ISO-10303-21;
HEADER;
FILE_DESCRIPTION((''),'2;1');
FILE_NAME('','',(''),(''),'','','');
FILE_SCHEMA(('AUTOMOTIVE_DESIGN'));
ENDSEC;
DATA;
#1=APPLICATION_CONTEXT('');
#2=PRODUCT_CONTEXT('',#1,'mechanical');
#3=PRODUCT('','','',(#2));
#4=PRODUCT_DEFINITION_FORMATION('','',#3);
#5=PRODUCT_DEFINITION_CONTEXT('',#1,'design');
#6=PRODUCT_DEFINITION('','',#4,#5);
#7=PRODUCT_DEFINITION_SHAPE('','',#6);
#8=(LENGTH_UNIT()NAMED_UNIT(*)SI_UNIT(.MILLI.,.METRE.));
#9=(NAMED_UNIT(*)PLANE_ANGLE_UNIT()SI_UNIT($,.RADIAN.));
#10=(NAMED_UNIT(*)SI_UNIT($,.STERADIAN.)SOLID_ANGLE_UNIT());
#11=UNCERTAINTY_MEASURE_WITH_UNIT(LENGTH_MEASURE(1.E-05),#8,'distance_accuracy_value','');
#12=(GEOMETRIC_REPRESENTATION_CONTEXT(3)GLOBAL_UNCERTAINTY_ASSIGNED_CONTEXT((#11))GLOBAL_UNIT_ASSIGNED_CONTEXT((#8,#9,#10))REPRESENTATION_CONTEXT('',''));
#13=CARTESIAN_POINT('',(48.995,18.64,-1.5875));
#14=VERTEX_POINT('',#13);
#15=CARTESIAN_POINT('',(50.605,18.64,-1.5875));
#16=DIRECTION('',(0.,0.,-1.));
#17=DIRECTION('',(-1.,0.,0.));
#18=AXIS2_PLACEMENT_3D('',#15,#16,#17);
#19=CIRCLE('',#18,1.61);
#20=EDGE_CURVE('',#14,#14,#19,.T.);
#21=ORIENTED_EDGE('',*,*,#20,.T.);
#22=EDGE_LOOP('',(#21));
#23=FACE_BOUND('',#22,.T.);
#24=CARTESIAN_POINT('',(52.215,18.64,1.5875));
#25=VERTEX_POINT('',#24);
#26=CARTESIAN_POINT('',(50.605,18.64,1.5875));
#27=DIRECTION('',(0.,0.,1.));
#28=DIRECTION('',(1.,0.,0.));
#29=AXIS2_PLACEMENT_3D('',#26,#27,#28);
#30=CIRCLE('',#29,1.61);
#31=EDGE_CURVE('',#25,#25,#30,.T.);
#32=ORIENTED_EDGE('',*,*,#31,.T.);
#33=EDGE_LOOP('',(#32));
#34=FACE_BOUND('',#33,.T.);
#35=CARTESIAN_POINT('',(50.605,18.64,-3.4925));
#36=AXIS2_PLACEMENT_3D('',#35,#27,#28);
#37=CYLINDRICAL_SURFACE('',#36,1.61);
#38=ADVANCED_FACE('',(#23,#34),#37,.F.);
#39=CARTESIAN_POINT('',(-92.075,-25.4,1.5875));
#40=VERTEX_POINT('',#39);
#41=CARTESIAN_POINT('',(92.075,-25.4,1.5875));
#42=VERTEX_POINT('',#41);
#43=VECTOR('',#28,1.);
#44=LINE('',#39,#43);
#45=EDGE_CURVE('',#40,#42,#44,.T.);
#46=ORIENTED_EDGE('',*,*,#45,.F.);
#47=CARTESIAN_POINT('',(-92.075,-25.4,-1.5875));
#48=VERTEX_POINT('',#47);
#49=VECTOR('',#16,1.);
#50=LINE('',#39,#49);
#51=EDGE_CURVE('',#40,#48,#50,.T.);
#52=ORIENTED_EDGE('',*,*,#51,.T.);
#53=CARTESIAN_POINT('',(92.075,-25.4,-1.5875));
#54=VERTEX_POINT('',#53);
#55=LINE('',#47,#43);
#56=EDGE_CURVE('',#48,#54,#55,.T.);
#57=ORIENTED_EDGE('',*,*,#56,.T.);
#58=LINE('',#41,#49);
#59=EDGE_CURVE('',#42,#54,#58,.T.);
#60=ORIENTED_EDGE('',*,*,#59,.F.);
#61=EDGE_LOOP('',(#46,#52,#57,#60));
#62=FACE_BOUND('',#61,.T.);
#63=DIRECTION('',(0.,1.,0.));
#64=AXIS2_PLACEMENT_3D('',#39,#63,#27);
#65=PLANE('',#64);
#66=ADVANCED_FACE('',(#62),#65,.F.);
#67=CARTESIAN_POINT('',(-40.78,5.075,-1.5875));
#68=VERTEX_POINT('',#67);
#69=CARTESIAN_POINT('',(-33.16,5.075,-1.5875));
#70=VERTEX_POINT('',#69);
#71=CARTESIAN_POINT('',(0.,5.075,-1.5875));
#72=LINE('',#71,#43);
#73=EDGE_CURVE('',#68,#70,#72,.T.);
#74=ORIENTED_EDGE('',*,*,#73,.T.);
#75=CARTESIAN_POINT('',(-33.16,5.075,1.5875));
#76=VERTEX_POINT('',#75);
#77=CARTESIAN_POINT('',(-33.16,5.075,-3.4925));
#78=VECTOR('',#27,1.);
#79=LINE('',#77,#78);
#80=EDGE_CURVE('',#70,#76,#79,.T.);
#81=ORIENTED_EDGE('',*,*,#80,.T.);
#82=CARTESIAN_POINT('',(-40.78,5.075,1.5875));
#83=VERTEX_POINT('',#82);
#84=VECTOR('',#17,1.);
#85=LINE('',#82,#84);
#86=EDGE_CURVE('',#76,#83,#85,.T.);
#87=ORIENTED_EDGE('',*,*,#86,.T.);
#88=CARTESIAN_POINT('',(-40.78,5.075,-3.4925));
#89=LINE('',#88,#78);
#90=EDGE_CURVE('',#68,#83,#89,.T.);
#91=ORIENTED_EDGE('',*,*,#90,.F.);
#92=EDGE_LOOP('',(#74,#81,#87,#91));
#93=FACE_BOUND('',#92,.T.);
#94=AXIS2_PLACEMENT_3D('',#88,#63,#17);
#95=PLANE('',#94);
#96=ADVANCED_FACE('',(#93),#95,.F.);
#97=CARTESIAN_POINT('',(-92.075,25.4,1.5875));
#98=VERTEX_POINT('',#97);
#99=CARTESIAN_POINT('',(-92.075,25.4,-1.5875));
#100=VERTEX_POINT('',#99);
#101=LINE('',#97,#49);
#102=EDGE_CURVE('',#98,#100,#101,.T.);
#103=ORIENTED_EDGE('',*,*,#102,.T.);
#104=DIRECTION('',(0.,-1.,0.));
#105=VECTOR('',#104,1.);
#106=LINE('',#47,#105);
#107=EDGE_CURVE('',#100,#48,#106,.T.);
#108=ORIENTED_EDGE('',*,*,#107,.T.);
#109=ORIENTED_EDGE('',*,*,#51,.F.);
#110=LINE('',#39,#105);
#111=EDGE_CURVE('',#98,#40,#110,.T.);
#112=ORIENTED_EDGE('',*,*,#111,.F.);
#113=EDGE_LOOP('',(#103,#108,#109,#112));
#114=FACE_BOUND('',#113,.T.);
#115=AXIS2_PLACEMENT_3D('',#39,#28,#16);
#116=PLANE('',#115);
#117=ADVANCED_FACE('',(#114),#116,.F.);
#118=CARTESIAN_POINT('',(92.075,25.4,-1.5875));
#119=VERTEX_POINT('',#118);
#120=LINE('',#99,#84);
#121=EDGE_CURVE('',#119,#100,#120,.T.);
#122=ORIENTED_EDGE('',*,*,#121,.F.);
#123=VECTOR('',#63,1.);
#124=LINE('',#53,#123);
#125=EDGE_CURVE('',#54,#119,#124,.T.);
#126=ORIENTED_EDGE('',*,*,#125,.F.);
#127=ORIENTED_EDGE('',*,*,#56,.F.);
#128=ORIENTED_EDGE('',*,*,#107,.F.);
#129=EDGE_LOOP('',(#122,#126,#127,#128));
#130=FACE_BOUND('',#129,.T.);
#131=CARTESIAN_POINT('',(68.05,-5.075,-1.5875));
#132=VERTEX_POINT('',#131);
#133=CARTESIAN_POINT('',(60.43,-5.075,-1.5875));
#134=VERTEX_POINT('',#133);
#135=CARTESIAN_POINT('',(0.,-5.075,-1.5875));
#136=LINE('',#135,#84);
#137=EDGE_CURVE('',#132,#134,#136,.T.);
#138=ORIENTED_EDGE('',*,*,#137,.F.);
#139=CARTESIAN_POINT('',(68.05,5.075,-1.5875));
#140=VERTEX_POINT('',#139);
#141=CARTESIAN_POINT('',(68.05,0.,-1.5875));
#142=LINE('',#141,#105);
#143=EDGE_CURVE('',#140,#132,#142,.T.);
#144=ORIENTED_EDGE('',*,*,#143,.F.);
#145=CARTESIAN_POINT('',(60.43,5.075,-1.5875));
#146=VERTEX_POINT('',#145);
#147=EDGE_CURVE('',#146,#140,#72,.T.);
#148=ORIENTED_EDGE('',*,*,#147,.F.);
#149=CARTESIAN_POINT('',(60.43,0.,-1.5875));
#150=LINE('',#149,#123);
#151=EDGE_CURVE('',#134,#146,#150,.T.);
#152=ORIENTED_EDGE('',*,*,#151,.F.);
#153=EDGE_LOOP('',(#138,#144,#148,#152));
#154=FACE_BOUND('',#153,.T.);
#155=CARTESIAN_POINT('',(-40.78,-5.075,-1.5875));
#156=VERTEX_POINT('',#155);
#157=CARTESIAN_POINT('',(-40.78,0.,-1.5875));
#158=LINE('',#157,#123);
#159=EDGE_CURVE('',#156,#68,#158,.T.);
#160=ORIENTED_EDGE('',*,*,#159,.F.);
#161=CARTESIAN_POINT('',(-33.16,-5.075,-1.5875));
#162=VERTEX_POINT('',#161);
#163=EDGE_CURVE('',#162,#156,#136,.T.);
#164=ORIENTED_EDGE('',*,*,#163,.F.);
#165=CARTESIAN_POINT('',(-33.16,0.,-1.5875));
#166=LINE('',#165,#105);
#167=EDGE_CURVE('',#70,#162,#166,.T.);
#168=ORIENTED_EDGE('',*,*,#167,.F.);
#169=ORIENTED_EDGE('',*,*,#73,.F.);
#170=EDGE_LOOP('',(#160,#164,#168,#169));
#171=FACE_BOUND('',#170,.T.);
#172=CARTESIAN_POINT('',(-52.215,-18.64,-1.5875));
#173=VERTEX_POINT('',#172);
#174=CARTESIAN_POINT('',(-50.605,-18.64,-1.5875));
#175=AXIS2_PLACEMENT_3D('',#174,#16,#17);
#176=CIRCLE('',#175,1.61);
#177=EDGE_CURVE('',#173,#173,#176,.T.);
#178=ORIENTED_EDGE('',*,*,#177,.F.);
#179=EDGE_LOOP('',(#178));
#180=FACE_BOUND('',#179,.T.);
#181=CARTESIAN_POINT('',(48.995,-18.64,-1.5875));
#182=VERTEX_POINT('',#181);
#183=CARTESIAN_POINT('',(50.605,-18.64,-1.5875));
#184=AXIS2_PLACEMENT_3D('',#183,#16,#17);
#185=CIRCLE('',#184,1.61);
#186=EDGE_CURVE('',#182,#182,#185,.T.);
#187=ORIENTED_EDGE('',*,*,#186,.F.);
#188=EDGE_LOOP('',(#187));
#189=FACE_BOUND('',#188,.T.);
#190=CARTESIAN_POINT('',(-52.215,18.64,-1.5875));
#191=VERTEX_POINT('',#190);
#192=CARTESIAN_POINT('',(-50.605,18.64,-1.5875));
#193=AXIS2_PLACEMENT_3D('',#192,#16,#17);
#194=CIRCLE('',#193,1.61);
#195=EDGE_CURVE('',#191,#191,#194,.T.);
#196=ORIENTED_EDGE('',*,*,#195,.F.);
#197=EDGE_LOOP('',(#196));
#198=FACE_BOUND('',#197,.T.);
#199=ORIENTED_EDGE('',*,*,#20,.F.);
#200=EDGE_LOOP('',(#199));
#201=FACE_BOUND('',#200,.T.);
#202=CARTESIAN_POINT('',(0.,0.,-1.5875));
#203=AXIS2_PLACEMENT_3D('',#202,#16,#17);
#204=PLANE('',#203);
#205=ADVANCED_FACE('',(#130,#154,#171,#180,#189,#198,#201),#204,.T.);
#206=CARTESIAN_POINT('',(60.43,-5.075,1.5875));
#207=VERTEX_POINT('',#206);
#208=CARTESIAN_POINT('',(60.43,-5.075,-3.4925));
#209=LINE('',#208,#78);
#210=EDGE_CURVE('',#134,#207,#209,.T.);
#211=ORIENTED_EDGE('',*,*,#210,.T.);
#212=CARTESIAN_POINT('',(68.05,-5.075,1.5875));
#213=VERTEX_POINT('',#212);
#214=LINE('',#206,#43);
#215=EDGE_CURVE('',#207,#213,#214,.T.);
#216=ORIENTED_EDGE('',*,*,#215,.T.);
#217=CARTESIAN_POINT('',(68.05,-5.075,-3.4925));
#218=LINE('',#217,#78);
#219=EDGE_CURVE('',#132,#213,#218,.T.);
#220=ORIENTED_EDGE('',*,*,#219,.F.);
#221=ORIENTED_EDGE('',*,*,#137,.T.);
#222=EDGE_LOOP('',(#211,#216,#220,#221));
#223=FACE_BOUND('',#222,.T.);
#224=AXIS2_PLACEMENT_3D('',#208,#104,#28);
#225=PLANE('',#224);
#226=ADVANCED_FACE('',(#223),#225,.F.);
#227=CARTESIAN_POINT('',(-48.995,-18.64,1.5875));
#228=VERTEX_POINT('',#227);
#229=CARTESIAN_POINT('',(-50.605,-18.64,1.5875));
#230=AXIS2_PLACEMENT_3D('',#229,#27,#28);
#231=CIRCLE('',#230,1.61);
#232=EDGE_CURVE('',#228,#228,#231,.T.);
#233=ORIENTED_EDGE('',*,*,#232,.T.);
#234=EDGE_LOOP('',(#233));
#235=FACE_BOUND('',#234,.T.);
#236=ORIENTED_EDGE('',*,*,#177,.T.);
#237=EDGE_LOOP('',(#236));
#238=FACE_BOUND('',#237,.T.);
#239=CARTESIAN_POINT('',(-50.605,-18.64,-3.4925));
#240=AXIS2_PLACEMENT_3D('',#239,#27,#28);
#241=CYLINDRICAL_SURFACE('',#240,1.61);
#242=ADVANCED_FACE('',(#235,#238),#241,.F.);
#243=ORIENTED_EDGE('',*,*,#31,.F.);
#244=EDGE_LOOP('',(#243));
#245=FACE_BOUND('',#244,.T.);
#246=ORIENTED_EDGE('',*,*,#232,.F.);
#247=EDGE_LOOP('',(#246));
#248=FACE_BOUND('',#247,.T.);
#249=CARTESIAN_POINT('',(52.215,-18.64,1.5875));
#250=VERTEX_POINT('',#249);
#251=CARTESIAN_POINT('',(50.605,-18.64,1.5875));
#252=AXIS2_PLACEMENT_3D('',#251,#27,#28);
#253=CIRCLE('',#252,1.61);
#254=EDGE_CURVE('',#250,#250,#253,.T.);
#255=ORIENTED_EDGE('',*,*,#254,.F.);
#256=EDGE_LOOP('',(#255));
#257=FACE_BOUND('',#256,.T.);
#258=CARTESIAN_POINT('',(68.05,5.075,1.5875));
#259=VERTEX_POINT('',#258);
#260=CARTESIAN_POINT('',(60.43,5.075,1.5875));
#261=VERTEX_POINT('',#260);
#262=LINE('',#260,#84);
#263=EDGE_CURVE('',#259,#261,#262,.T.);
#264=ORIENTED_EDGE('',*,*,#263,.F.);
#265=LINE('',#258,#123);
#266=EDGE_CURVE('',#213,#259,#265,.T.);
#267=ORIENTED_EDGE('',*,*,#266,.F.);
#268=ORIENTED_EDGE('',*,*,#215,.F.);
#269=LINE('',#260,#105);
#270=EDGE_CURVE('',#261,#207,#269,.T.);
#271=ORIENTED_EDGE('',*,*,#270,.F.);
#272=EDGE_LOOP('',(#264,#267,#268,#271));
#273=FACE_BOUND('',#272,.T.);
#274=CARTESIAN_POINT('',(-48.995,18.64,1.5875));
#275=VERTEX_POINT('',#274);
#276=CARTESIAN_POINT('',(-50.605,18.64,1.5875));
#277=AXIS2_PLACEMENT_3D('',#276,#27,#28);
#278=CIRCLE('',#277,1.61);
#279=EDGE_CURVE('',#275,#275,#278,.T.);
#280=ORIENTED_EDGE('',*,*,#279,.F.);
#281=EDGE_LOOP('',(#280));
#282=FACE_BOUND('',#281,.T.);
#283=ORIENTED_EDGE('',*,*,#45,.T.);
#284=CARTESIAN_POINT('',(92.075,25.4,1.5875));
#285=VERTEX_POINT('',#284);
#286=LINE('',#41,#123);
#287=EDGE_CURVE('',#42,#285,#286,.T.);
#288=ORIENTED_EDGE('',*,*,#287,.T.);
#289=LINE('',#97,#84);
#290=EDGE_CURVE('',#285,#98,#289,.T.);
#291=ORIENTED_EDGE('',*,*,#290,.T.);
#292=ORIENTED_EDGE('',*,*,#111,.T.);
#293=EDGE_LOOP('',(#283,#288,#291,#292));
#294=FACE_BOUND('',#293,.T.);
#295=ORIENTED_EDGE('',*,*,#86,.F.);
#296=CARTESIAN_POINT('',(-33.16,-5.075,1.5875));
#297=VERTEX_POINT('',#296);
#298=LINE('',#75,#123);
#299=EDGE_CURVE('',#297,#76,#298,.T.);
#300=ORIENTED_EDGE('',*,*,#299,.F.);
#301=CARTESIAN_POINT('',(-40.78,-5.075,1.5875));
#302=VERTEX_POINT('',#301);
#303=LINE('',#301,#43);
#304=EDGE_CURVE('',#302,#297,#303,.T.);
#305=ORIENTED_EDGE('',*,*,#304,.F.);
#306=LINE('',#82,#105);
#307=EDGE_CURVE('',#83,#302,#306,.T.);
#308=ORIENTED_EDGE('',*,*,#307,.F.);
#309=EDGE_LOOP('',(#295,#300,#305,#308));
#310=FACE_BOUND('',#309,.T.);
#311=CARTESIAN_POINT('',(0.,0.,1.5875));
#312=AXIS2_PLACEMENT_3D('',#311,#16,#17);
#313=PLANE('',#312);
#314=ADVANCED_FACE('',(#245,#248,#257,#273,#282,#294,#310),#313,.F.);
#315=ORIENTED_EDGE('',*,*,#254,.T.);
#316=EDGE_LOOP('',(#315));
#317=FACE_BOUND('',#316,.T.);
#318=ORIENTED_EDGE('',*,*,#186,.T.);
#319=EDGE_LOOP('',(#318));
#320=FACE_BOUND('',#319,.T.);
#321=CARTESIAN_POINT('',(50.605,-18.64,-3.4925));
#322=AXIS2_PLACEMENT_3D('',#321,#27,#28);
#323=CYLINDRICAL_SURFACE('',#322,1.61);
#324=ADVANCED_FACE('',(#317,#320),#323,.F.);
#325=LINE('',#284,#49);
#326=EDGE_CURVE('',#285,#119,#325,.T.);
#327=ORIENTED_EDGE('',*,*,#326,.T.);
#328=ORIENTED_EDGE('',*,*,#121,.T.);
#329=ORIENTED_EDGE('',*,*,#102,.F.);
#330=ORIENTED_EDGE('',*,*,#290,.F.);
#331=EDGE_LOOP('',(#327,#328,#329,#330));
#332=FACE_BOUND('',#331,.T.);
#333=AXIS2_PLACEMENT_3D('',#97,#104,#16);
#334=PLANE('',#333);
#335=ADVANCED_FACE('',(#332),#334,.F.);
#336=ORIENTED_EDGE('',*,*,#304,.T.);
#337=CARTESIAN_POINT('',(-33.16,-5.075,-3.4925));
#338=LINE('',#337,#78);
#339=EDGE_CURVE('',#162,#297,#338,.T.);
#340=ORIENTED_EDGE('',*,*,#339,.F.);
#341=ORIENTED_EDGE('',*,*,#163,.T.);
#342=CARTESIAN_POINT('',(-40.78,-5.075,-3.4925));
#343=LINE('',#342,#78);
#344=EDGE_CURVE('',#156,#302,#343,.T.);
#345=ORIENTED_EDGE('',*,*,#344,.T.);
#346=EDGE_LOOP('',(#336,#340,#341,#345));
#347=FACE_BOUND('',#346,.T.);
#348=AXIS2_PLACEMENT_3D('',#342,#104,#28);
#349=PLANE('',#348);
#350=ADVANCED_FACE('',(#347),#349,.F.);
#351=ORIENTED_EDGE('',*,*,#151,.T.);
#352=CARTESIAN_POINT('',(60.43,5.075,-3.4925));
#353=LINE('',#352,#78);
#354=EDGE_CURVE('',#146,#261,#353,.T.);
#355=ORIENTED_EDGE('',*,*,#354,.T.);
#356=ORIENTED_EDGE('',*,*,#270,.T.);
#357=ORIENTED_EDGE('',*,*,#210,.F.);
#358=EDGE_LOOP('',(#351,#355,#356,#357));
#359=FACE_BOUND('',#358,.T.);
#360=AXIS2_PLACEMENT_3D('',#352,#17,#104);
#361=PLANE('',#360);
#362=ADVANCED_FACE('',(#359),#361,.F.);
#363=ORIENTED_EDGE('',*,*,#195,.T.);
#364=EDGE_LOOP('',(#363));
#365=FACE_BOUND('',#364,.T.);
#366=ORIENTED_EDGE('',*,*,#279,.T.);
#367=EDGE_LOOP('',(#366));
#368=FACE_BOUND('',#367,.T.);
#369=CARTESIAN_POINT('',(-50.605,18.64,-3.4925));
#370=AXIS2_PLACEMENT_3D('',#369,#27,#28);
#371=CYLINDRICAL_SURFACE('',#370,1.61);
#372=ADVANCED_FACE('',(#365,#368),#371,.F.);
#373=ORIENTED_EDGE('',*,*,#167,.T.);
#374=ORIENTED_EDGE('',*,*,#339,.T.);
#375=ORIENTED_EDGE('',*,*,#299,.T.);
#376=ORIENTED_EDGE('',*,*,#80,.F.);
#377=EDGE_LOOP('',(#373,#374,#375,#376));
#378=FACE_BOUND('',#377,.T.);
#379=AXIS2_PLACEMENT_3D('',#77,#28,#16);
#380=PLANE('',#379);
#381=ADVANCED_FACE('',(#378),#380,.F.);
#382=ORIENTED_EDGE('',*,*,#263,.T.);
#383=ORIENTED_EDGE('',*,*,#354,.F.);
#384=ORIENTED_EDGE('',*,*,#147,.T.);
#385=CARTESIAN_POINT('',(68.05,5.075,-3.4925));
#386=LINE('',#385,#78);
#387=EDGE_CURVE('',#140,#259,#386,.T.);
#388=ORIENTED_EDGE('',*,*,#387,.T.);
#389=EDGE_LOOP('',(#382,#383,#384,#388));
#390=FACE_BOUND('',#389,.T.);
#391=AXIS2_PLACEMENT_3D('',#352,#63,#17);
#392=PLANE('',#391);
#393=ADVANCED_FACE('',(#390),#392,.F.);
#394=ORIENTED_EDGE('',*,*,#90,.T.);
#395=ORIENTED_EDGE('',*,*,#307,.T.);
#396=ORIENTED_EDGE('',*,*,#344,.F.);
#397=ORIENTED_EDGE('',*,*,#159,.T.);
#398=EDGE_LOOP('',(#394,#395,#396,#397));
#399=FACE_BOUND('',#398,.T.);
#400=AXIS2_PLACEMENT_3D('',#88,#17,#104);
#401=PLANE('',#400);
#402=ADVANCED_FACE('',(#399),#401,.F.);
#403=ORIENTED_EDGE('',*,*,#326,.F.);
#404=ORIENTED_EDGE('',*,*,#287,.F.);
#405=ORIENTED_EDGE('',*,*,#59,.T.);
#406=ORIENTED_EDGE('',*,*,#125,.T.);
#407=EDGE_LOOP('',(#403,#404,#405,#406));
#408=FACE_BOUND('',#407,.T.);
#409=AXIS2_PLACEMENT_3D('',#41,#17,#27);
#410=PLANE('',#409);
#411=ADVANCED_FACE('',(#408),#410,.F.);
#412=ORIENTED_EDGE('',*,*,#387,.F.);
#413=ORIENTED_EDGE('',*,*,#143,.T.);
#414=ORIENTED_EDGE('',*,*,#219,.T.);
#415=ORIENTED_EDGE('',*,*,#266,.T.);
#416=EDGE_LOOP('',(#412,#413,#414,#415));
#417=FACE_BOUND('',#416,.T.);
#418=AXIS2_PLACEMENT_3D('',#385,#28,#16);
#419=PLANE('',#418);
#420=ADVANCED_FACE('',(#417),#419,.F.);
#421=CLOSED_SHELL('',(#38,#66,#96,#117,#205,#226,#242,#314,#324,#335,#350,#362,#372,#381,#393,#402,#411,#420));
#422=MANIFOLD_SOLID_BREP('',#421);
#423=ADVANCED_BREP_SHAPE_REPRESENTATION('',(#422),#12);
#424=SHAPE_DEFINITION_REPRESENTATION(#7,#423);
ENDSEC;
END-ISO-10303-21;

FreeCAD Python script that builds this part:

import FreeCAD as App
import Part
import Sketcher
Q = App.Units.Quantity


def add_polygon(sketch, points):
    """Adds a closed chain of lines whose ends are joined by coincident constraints."""
    first, n = sketch.GeometryCount, len(points)
    for a, b in zip(points, points[1:] + points[:1]):
        sketch.addGeometry(Part.LineSegment(App.Vector(*a, 0), App.Vector(*b, 0)), False)
    for i in range(n):
        sketch.addConstraint(Sketcher.Constraint("Coincident", first + i, 2, first + (i + 1) % n, 1))

doc = App.newDocument("Part")
body = doc.addObject("PartDesign::Body", "Body")

sketch1 = body.newObject("Sketcher::SketchObject", "Sketch")
sketch1.AttachmentSupport = (doc.getObject("XY_Plane"), [""])
sketch1.MapMode = "FlatFace"
add_polygon(sketch1, [(-92.075, 25.4), (-92.075, -25.4), (92.075, -25.4), (92.075, 25.4)])
sketch1.addConstraint(Sketcher.Constraint("Vertical", 0))
sketch1.addConstraint(Sketcher.Constraint("Horizontal", 1))
sketch1.addConstraint(Sketcher.Constraint("Vertical", 2))
sketch1.addConstraint(Sketcher.Constraint("Horizontal", 3))
sketch1.addConstraint(Sketcher.Constraint("Symmetric", 0, 2, 2, 2, -1, 1))
sketch1.addConstraint(Sketcher.Constraint("DistanceY", 0, 2, 0, 1, Q("2 in")))
sketch1.addConstraint(Sketcher.Constraint("DistanceX", 1, 1, 1, 2, Q("7.25 in")))
pad1 = body.newObject("PartDesign::Pad", "Pad")
pad1.Profile = sketch1
pad1.Length = Q("0.125 in")
pad1.Midplane = True

sketch2 = body.newObject("Sketcher::SketchObject", "Sketch001")
sketch2.AttachmentSupport = (doc.getObject("XY_Plane"), [""])
sketch2.MapMode = "FlatFace"
sketch2.AttachmentOffset = App.Placement(App.Vector(0, 0, 0.0625 * 25.4), App.Rotation())
sketch2.addGeometry(Part.Circle(App.Vector(-50.605, 18.64, 0), App.Vector(0, 0, 1), 1.61), False)
sketch2.addGeometry(Part.Circle(App.Vector(-50.605, -18.64, 0), App.Vector(0, 0, 1), 1.61), False)
sketch2.addGeometry(Part.Circle(App.Vector(50.605, 18.64, 0), App.Vector(0, 0, 1), 1.61), False)
sketch2.addGeometry(Part.Circle(App.Vector(50.605, -18.64, 0), App.Vector(0, 0, 1), 1.61), False)
add_polygon(sketch2, [(-40.78, 5.075), (-40.78, -5.075), (-33.16, -5.075), (-33.16, 5.075)])
add_polygon(sketch2, [(60.43, 5.075), (60.43, -5.075), (68.05, -5.075), (68.05, 5.075)])
sketch2.addConstraint(Sketcher.Constraint("Vertical", 4))
sketch2.addConstraint(Sketcher.Constraint("Horizontal", 5))
sketch2.addConstraint(Sketcher.Constraint("Vertical", 6))
sketch2.addConstraint(Sketcher.Constraint("Horizontal", 7))
sketch2.addConstraint(Sketcher.Constraint("Vertical", 8))
sketch2.addConstraint(Sketcher.Constraint("Horizontal", 9))
sketch2.addConstraint(Sketcher.Constraint("Vertical", 10))
sketch2.addConstraint(Sketcher.Constraint("Horizontal", 11))
sketch2.addConstraint(Sketcher.Constraint("Equal", 0, 1))
sketch2.addConstraint(Sketcher.Constraint("Equal", 1, 2))
sketch2.addConstraint(Sketcher.Constraint("Equal", 2, 3))
sketch2.addConstraint(Sketcher.Constraint("Symmetric", 1, 3, 2, 3, -1, 1))
sketch2.addConstraint(Sketcher.Constraint("Symmetric", 0, 3, 3, 3, -1, 1))
sketch2.addConstraint(Sketcher.Constraint("Symmetric", 0, 3, 2, 3, -2))
sketch2.addConstraint(Sketcher.Constraint("Horizontal", 5, 2, 8, 2))
sketch2.addConstraint(Sketcher.Constraint("Horizontal", 7, 2, 10, 2))
sketch2.addConstraint(Sketcher.Constraint("Equal", 7, 9))
sketch2.addConstraint(Sketcher.Constraint("DistanceX", 5, 1, 5, 2, Q("0.3 in")))
sketch2.addConstraint(Sketcher.Constraint("Diameter", 0, Q("3.22 mm")))
sketch2.addConstraint(Sketcher.Constraint("DistanceY", 4, 2, 4, 1, Q("10.15 mm")))
sketch2.addConstraint(Sketcher.Constraint("DistanceX", 0, 3, -1, 1, Q("50.605 mm")))
sketch2.addConstraint(Sketcher.Constraint("DistanceY", -1, 1, 0, 3, Q("18.64 mm")))
sketch2.addConstraint(Sketcher.Constraint("DistanceX", 4, 2, -1, 1, Q("40.78 mm")))
sketch2.addConstraint(Sketcher.Constraint("DistanceY", 4, 2, -1, 1, Q("5.075 mm")))
sketch2.addConstraint(Sketcher.Constraint("DistanceX", -1, 1, 8, 2, Q("60.43 mm")))
pocket1 = body.newObject("PartDesign::Pocket", "Pocket")
pocket1.Profile = sketch2
pocket1.Length = Q("0.2 in")

doc.recompute()
